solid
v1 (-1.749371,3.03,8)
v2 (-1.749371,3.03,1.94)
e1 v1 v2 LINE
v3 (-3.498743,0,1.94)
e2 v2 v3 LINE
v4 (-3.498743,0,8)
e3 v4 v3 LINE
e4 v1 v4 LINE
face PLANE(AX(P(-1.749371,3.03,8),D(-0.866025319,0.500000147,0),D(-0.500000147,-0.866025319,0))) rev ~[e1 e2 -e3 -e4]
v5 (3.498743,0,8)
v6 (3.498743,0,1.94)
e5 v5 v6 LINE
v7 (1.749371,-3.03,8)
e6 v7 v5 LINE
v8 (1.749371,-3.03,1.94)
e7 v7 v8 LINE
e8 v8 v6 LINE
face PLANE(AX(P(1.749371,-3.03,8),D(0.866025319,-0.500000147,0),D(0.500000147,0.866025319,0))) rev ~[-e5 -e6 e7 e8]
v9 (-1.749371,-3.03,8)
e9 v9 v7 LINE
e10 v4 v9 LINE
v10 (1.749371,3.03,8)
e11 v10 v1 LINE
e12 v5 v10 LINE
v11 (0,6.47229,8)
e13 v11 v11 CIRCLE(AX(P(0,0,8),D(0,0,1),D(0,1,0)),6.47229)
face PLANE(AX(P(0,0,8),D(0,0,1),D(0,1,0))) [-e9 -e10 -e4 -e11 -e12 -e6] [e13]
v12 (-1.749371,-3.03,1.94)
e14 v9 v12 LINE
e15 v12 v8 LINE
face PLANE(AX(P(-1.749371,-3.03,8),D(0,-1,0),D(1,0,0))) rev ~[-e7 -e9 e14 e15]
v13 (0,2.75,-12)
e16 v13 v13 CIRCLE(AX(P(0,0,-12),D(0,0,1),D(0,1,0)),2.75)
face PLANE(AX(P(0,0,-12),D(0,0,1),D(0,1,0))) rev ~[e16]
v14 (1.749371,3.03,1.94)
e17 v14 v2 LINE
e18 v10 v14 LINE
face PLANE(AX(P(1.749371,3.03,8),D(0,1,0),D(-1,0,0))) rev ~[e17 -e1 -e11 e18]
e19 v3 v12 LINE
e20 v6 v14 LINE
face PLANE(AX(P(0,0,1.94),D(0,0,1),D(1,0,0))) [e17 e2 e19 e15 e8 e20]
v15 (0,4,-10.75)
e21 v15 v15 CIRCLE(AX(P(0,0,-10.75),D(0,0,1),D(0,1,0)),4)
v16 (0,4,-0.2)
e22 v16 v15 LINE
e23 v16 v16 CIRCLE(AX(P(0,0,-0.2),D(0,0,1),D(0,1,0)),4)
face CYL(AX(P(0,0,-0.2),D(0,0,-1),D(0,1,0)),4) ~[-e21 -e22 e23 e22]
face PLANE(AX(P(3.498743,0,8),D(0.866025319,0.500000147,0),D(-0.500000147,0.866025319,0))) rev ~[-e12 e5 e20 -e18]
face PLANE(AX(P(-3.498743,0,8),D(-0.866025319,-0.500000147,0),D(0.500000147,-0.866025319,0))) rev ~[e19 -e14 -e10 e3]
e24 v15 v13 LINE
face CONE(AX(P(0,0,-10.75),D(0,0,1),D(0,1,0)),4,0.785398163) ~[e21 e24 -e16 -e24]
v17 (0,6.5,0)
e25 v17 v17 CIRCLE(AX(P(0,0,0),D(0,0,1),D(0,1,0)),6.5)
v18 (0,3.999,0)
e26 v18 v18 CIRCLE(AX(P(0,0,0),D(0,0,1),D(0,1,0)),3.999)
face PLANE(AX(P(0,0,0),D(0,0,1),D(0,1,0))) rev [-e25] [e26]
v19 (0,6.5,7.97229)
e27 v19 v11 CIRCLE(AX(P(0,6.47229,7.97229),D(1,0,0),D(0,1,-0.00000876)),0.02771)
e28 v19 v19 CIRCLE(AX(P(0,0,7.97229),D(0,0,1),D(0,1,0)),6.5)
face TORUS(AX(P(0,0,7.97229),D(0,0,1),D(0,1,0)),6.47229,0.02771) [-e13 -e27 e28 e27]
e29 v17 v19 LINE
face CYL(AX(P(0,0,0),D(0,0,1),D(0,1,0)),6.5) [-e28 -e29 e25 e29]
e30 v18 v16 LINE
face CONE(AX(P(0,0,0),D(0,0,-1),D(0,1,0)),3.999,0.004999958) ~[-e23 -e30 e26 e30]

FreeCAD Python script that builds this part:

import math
import FreeCAD as App
import Part
import Sketcher
from FreeCAD import Vector
Q = App.Units.Quantity

doc = App.newDocument("Part")
params = doc.addObject("Spreadsheet::Sheet", "Params")
for row, (alias, value) in enumerate([
    ("sketch1_height", "20 mm"),
    ("sketch1_width", "2.75 mm"),
    ("sketch1_height2", "10.55 mm"),
    ("revolution_angle", "360 deg"),
    ("pocket1_length", "6.06 mm"),
], start=1):
    params.set(f"A{row}", alias)
    params.set(f"B{row}", "=" + value)
    params.setAlias(f"B{row}", alias)

body = doc.addObject("PartDesign::Body", "Body")

# Sketch on YZ plane
sketch1 = body.newObject("Sketcher::SketchObject", "Sketch")
sketch1.AttachmentSupport = (doc.getObject("YZ_Plane"), [""])
sketch1.MapMode = "FlatFace"
sketch1.addGeometry([
    Part.LineSegment(Vector(3.999, 0, 0), Vector(6.5, 0, 0)),  # 0
    Part.LineSegment(Vector(6.5, 0, 0), Vector(6.5, 7.972, 0)),  # 1
    Part.ArcOfCircle(Part.Circle(Vector(6.472, 7.972, 0), Vector(0, 0, 1), 0.028), math.radians(0), math.radians(90)),  # 2
    Part.LineSegment(Vector(6.472, 8, 0), Vector(0, 8, 0)),  # 3
    Part.LineSegment(Vector(0, 8, 0), Vector(0, -12, 0)),  # 4
    Part.LineSegment(Vector(0, -12, 0), Vector(2.75, -12, 0)),  # 5
    Part.LineSegment(Vector(2.75, -12, 0), Vector(4, -10.75, 0)),  # 6
    Part.LineSegment(Vector(4, -10.75, 0), Vector(4, -0.2, 0)),  # 7
    Part.LineSegment(Vector(4, -0.2, 0), Vector(3.999, 0, 0)),  # 8
], False)
sketch1.addConstraint([
    Sketcher.Constraint("Coincident", 0, 2, 1, 1),
    Sketcher.Constraint("Coincident", 1, 2, 2, 1),
    Sketcher.Constraint("Coincident", 2, 2, 3, 1),
    Sketcher.Constraint("Coincident", 3, 2, 4, 1),
    Sketcher.Constraint("Coincident", 4, 2, 5, 1),
    Sketcher.Constraint("Coincident", 5, 2, 6, 1),
    Sketcher.Constraint("Coincident", 6, 2, 7, 1),
    Sketcher.Constraint("Coincident", 7, 2, 8, 1),
    Sketcher.Constraint("Coincident", 8, 2, 0, 1),
    Sketcher.Constraint("Horizontal", 0),
    Sketcher.Constraint("Vertical", 1),
    Sketcher.Constraint("Horizontal", 3),
    Sketcher.Constraint("Vertical", 4),
    Sketcher.Constraint("Horizontal", 5),
    Sketcher.Constraint("Vertical", 7),
    Sketcher.Constraint("PointOnObject", 0, 2, -1),
    Sketcher.Constraint("PointOnObject", 3, 2, -2),
    Sketcher.Constraint("Horizontal", 2, 3, 1, 2),
    Sketcher.Constraint("DistanceY", 4, 2, 4, 1, 20.0),
    Sketcher.Constraint("Angle", 6, Q("45 deg")),
    Sketcher.Constraint("DistanceY", -1, 1, 2, 2, 8.0),
    Sketcher.Constraint("DistanceX", -1, 1, 6, 2, 4.0),
    Sketcher.Constraint("DistanceX", 5, 1, 5, 2, 2.75),
    Sketcher.Constraint("DistanceY", 7, 1, 7, 2, 10.55),
    Sketcher.Constraint("DistanceX", -1, 1, 0, 2, 6.5),
    Sketcher.Constraint("DistanceX", 0, 1, 0, 2, 2.501),
    Sketcher.Constraint("Radius", 2, 0.02771),
    Sketcher.Constraint("DistanceX", 3, 2, 3, 1, 6.47229),
])
sketch1.setExpression("Constraints[18]", "Params.sketch1_height")
sketch1.setExpression("Constraints[22]", "Params.sketch1_width")
sketch1.setExpression("Constraints[23]", "Params.sketch1_height2")
revolution = body.newObject("PartDesign::Revolution", "Revolution")
revolution.Profile = sketch1
revolution.ReferenceAxis = (sketch1, ["V_Axis"])
revolution.setExpression("Angle", "Params.revolution_angle")

# Sketch on XY plane
sketch2 = body.newObject("Sketcher::SketchObject", "Sketch001")
sketch2.AttachmentSupport = (doc.getObject("XY_Plane"), [""])
sketch2.MapMode = "FlatFace"
sketch2.AttachmentOffset = App.Placement(Vector(0, 0, 8), App.Rotation())
sketch2.addGeometry([
    Part.LineSegment(Vector(3.5, 0, 0), Vector(1.7, 3, 0)),  # 0
    Part.LineSegment(Vector(1.7, 3, 0), Vector(-1.7, 3, 0)),  # 1
    Part.LineSegment(Vector(-1.7, 3, 0), Vector(-3.5, 0, 0)),  # 2
    Part.LineSegment(Vector(-3.5, 0, 0), Vector(-1.7, -3, 0)),  # 3
    Part.LineSegment(Vector(-1.7, -3, 0), Vector(1.7, -3, 0)),  # 4
    Part.LineSegment(Vector(1.7, -3, 0), Vector(3.5, 0, 0)),  # 5
], False)
sketch2.addConstraint([
    Sketcher.Constraint("Coincident", 0, 2, 1, 1),
    Sketcher.Constraint("Coincident", 1, 2, 2, 1),
    Sketcher.Constraint("Coincident", 2, 2, 3, 1),
    Sketcher.Constraint("Coincident", 3, 2, 4, 1),
    Sketcher.Constraint("Coincident", 4, 2, 5, 1),
    Sketcher.Constraint("Coincident", 5, 2, 0, 1),
    Sketcher.Constraint("Horizontal", 1),
    Sketcher.Constraint("Horizontal", 4),
    Sketcher.Constraint("Symmetric", 0, 2, 3, 2, -1, 1),
    Sketcher.Constraint("Symmetric", 2, 2, 5, 2, -1, 1),
    Sketcher.Constraint("PointOnObject", 2, 2, -1),
    Sketcher.Constraint("Parallel", 2, 5),
    Sketcher.Constraint("Vertical", 1, 2, 3, 2),
    Sketcher.Constraint("Angle", 0, Q("120.00001 deg")),
    Sketcher.Constraint("DistanceY", -1, 1, 0, 2, 3.03),
    Sketcher.Constraint("DistanceX", 1, 2, 1, 1, 3.498742),
])
pocket1 = body.newObject("PartDesign::Pocket", "Pocket")
pocket1.Profile = sketch2
pocket1.setExpression("Length", "Params.pocket1_length")

doc.recompute()
